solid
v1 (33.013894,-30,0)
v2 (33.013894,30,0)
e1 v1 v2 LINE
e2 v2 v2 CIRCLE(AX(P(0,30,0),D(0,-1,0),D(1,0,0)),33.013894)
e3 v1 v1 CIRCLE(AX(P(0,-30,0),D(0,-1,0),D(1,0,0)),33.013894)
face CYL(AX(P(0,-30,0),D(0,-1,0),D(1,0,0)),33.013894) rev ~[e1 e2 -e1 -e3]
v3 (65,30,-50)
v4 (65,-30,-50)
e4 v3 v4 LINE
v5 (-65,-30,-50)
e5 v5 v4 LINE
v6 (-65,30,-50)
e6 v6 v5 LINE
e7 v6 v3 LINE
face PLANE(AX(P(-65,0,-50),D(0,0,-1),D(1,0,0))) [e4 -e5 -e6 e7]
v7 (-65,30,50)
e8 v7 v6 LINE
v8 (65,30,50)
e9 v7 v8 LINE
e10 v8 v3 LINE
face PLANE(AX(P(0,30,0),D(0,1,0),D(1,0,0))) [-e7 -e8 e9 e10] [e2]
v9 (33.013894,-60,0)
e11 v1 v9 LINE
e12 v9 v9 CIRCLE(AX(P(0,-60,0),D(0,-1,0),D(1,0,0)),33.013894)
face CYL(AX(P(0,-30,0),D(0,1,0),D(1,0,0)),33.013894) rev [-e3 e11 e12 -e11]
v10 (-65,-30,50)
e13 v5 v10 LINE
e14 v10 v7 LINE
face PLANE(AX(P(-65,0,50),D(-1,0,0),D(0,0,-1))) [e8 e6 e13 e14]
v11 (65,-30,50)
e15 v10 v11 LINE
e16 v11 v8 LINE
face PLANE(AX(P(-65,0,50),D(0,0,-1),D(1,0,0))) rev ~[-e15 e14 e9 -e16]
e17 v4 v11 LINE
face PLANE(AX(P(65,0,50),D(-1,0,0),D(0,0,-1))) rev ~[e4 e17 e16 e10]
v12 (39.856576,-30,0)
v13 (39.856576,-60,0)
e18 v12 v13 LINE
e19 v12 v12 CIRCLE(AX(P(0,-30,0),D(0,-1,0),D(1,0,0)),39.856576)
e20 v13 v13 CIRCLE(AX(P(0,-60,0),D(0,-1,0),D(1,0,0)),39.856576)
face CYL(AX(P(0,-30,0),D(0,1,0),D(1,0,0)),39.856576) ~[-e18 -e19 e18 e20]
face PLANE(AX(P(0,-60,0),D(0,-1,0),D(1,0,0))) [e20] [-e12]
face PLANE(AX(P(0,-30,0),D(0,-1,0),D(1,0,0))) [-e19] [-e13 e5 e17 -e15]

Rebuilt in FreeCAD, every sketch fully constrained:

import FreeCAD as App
import Part
import Sketcher

V = App.Vector


def add_polygon(sketch, points):
    """Adds a closed chain of lines whose ends are joined by coincident constraints."""
    first, n = sketch.GeometryCount, len(points)
    for a, b in zip(points, points[1:] + points[:1]):
        sketch.addGeometry(Part.LineSegment(App.Vector(*a, 0), App.Vector(*b, 0)), False)
    for i in range(n):
        sketch.addConstraint(Sketcher.Constraint("Coincident", first + i, 2, first + (i + 1) % n, 1))

doc = App.newDocument("Part")
body = doc.addObject("PartDesign::Body", "Body")

# Sketch on XZ plane
sketch1 = body.newObject("Sketcher::SketchObject", "Sketch")
sketch1.AttachmentSupport = (doc.getObject("XZ_Plane"), [""])
sketch1.MapMode = "FlatFace"
add_polygon(sketch1, [(-65, 50), (-65, -50), (65, -50), (65, 50)])  # lines 0-3
sketch1.addConstraint([
    Sketcher.Constraint("Vertical", 0),
    Sketcher.Constraint("Horizontal", 1),
    Sketcher.Constraint("Vertical", 2),
    Sketcher.Constraint("Horizontal", 3),
    Sketcher.Constraint("Symmetric", 0, 2, 2, 2, -1, 1),
    Sketcher.Constraint("DistanceX", 1, 1, 1, 2, 130.0),
    Sketcher.Constraint("DistanceY", 0, 2, 0, 1, 100.0),
])
pad1 = body.newObject("PartDesign::Pad", "Pad")
pad1.Profile = sketch1
pad1.Length = 30

# Sketch on XZ plane
sketch2 = body.newObject("Sketcher::SketchObject", "Sketch001")
sketch2.AttachmentSupport = (doc.getObject("XZ_Plane"), [""])
sketch2.MapMode = "FlatFace"
add_polygon(sketch2, [(-65, -50), (-65, 50), (65, 50), (65, -50)])  # lines 0-3
sketch2.addConstraint([
    Sketcher.Constraint("Vertical", 0),
    Sketcher.Constraint("Horizontal", 1),
    Sketcher.Constraint("Vertical", 2),
    Sketcher.Constraint("Horizontal", 3),
    Sketcher.Constraint("Symmetric", 0, 2, 2, 2, -1, 1),
    Sketcher.Constraint("DistanceX", 1, 1, 1, 2, 130.0),
    Sketcher.Constraint("DistanceY", 0, 1, 0, 2, 100.0),
])
pad2 = body.newObject("PartDesign::Pad", "Pad001")
pad2.Profile = sketch2
pad2.Length = 30
pad2.Reversed = True

# Sketch on XZ plane
sketch3 = body.newObject("Sketcher::SketchObject", "Sketch002")
sketch3.AttachmentSupport = (doc.getObject("XZ_Plane"), [""])
sketch3.MapMode = "FlatFace"
sketch3.AttachmentOffset = App.Placement(V(0, 0, 30), App.Rotation())
sketch3.addGeometry([
    Part.Circle(V(0, 0, 0), V(0, 0, 1), 40),
    Part.Circle(V(0, 0, 0), V(0, 0, 1), 33),
], False)
sketch3.addConstraint([
    Sketcher.Constraint("Coincident", 0, 3, -1, 1),
    Sketcher.Constraint("Coincident", 1, 3, -1, 1),
    Sketcher.Constraint("Diameter", 0, 79.713152),
    Sketcher.Constraint("Diameter", 1, 66.027788),
])
pad3 = body.newObject("PartDesign::Pad", "Pad002")
pad3.Profile = sketch3
pad3.Length = 30

# Sketch on XZ plane
sketch4 = body.newObject("Sketcher::SketchObject", "Sketch003")
sketch4.AttachmentSupport = (doc.getObject("XZ_Plane"), [""])
sketch4.MapMode = "FlatFace"
sketch4.AttachmentOffset = App.Placement(V(0, 0, 30), App.Rotation())
sketch4.addGeometry(Part.Circle(V(0, 0, 0), V(0, 0, 1), 33), False)
sketch4.addConstraint([
    Sketcher.Constraint("Coincident", 0, 3, -1, 1),
    Sketcher.Constraint("Diameter", 0, 66.027788),
])
pocket1 = body.newObject("PartDesign::Pocket", "Pocket")
pocket1.Profile = sketch4
pocket1.Length = 60

doc.recompute()
